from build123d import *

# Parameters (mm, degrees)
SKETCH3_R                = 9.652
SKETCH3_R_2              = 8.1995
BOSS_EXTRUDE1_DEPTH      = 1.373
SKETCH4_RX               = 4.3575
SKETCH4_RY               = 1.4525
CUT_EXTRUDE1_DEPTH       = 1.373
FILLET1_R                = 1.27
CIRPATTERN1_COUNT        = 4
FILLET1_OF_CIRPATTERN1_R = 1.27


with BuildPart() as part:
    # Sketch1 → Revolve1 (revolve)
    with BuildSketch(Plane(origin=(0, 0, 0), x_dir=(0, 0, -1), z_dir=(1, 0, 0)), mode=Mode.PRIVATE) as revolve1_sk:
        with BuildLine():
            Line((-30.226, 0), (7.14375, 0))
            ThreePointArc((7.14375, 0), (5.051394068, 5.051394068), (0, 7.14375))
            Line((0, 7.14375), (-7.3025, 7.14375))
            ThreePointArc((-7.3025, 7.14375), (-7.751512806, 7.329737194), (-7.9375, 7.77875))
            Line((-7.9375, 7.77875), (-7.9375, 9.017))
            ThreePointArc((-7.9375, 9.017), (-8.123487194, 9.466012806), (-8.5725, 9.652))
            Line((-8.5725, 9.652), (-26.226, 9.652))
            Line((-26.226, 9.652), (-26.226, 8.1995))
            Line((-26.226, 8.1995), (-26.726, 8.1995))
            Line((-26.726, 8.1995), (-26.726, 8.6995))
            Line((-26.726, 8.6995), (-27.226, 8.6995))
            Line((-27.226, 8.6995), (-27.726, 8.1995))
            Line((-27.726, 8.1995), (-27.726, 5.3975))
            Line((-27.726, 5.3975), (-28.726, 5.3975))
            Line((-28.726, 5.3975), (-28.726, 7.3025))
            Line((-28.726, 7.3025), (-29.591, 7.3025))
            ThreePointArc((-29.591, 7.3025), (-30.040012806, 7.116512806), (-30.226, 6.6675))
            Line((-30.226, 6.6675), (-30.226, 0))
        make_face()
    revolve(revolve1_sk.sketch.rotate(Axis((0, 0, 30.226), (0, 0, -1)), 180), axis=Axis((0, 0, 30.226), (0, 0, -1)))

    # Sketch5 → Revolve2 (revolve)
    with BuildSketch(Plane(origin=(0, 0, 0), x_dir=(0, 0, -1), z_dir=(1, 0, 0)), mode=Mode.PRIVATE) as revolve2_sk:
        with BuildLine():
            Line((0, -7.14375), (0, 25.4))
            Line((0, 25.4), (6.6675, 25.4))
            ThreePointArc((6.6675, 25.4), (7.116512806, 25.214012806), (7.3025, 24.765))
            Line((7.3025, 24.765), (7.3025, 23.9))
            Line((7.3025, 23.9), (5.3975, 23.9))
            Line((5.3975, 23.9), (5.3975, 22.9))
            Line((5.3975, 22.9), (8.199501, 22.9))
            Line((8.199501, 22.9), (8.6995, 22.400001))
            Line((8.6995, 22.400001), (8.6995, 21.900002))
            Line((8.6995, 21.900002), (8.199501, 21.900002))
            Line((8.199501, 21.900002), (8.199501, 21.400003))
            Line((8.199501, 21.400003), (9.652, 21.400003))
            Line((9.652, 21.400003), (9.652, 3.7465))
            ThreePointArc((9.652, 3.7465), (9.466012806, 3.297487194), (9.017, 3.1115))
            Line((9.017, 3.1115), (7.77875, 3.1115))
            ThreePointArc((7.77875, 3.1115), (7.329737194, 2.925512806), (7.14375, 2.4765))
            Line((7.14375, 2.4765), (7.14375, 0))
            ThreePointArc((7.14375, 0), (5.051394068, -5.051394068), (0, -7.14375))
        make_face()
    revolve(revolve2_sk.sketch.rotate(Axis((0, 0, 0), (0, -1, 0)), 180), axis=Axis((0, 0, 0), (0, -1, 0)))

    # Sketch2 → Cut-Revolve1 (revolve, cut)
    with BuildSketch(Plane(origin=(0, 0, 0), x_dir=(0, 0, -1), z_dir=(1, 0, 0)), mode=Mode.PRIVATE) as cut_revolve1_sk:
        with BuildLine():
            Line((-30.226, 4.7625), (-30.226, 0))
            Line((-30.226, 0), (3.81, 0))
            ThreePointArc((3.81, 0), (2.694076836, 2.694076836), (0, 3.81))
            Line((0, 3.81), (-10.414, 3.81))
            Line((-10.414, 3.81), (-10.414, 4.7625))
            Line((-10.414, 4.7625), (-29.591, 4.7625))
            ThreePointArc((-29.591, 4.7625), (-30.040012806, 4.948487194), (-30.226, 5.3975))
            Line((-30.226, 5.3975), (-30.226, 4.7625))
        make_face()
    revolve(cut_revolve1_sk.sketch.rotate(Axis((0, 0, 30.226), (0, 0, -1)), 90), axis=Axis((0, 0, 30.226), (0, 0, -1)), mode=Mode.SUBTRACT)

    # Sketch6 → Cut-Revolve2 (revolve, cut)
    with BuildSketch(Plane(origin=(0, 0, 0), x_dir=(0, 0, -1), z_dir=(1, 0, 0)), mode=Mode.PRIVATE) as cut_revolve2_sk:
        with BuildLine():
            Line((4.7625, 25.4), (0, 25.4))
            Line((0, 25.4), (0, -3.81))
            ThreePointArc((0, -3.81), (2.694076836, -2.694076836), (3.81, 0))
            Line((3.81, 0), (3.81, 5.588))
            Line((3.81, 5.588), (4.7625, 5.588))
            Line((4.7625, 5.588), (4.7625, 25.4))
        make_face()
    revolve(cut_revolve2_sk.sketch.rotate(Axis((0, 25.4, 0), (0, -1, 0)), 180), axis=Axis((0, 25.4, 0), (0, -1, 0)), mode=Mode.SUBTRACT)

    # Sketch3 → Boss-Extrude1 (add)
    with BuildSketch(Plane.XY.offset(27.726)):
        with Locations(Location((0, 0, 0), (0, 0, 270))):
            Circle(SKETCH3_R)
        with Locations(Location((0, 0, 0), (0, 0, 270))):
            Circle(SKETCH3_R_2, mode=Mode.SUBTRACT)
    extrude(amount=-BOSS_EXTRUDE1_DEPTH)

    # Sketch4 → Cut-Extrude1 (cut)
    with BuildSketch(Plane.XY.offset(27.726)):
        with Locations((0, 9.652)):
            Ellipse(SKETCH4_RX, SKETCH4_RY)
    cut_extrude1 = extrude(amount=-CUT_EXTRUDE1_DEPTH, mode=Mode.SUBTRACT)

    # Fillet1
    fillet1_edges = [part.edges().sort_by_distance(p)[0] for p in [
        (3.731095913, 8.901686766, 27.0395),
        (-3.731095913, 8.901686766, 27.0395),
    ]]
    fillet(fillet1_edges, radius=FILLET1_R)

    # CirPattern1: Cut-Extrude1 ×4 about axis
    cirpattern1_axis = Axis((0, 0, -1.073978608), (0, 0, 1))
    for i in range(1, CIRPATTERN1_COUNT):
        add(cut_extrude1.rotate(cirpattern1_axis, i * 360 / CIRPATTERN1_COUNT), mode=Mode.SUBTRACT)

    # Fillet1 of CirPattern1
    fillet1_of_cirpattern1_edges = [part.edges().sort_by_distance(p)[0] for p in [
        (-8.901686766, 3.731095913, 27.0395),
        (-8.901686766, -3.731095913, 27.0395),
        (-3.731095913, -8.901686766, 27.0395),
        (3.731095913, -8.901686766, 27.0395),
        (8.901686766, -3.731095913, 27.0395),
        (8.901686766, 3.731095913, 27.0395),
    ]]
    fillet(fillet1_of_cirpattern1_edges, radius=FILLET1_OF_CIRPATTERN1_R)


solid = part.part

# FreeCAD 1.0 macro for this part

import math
import FreeCAD as App
import Part
import Sketcher

V = App.Vector
Q = App.Units.Quantity


def edges_at(feature, points):
    """Names of the edges that pass closest to the given points."""
    edges = feature.Shape.Edges
    near = lambda p: min(range(len(edges)), key=lambda i: edges[i].distToShape(Part.Vertex(*p))[0])
    return sorted({f"Edge{near(p) + 1}" for p in points})

doc = App.newDocument("Part")
body = doc.addObject("PartDesign::Body", "Body")

# Sketch on YZ plane
sketch1 = body.newObject("Sketcher::SketchObject", "Sketch")
sketch1.AttachmentSupport = (doc.getObject("YZ_Plane"), [""])
sketch1.MapMode = "FlatFace"
sketch1.addGeometry(Part.LineSegment(V(0, 30.226, 0), V(0, -7.14375, 0)), False)
sketch1.addGeometry(Part.ArcOfCircle(Part.Circle(V(0, 0, 0), V(0, 0, 1), 7.14375), math.radians(-90), math.radians(0)), False)
sketch1.addGeometry(Part.LineSegment(V(7.14375, 0, 0), V(7.14375, 7.3025, 0)), False)
sketch1.addGeometry(Part.ArcOfCircle(Part.Circle(V(7.77875, 7.3025, 0), V(0, 0, 1), 0.635), math.radians(90), math.radians(180)), False)
sketch1.addGeometry(Part.LineSegment(V(7.77875, 7.9375, 0), V(9.017, 7.9375, 0)), False)
sketch1.addGeometry(Part.ArcOfCircle(Part.Circle(V(9.017, 8.5725, 0), V(0, 0, 1), 0.635), math.radians(-90), math.radians(0)), False)
sketch1.addGeometry(Part.LineSegment(V(9.652, 8.5725, 0), V(9.652, 26.226, 0)), False)
sketch1.addGeometry(Part.LineSegment(V(9.652, 26.226, 0), V(8.1995, 26.226, 0)), False)
sketch1.addGeometry(Part.LineSegment(V(8.1995, 26.226, 0), V(8.1995, 26.726, 0)), False)
sketch1.addGeometry(Part.LineSegment(V(8.1995, 26.726, 0), V(8.6995, 26.726, 0)), False)
sketch1.addGeometry(Part.LineSegment(V(8.6995, 26.726, 0), V(8.6995, 27.226, 0)), False)
sketch1.addGeometry(Part.LineSegment(V(8.6995, 27.226, 0), V(8.1995, 27.726, 0)), False)
sketch1.addGeometry(Part.LineSegment(V(8.1995, 27.726, 0), V(5.3975, 27.726, 0)), False)
sketch1.addGeometry(Part.LineSegment(V(5.3975, 27.726, 0), V(5.3975, 28.726, 0)), False)
sketch1.addGeometry(Part.LineSegment(V(5.3975, 28.726, 0), V(7.3025, 28.726, 0)), False)
sketch1.addGeometry(Part.LineSegment(V(7.3025, 28.726, 0), V(7.3025, 29.591, 0)), False)
sketch1.addGeometry(Part.ArcOfCircle(Part.Circle(V(6.6675, 29.591, 0), V(0, 0, 1), 0.635), math.radians(0), math.radians(90)), False)
sketch1.addGeometry(Part.LineSegment(V(6.6675, 30.226, 0), V(0, 30.226, 0)), False)
sketch1.addConstraint(Sketcher.Constraint("Coincident", 0, 2, 1, 1))
sketch1.addConstraint(Sketcher.Constraint("Tangent", 1, 2, 2, 1))
sketch1.addConstraint(Sketcher.Constraint("Tangent", 2, 2, 3, 2))
sketch1.addConstraint(Sketcher.Constraint("Tangent", 3, 1, 4, 1))
sketch1.addConstraint(Sketcher.Constraint("Tangent", 4, 2, 5, 1))
sketch1.addConstraint(Sketcher.Constraint("Tangent", 5, 2, 6, 1))
sketch1.addConstraint(Sketcher.Constraint("Coincident", 6, 2, 7, 1))
sketch1.addConstraint(Sketcher.Constraint("Coincident", 7, 2, 8, 1))
sketch1.addConstraint(Sketcher.Constraint("Coincident", 8, 2, 9, 1))
sketch1.addConstraint(Sketcher.Constraint("Coincident", 9, 2, 10, 1))
sketch1.addConstraint(Sketcher.Constraint("Coincident", 10, 2, 11, 1))
sketch1.addConstraint(Sketcher.Constraint("Coincident", 11, 2, 12, 1))
sketch1.addConstraint(Sketcher.Constraint("Coincident", 12, 2, 13, 1))
sketch1.addConstraint(Sketcher.Constraint("Coincident", 13, 2, 14, 1))
sketch1.addConstraint(Sketcher.Constraint("Coincident", 14, 2, 15, 1))
sketch1.addConstraint(Sketcher.Constraint("Tangent", 15, 2, 16, 1))
sketch1.addConstraint(Sketcher.Constraint("Tangent", 16, 2, 17, 1))
sketch1.addConstraint(Sketcher.Constraint("Coincident", 17, 2, 0, 1))
sketch1.addConstraint(Sketcher.Constraint("Vertical", 0))
sketch1.addConstraint(Sketcher.Constraint("Vertical", 2))
sketch1.addConstraint(Sketcher.Constraint("Horizontal", 4))
sketch1.addConstraint(Sketcher.Constraint("Vertical", 6))
sketch1.addConstraint(Sketcher.Constraint("Horizontal", 7))
sketch1.addConstraint(Sketcher.Constraint("Vertical", 8))
sketch1.addConstraint(Sketcher.Constraint("Horizontal", 9))
sketch1.addConstraint(Sketcher.Constraint("Vertical", 10))
sketch1.addConstraint(Sketcher.Constraint("Horizontal", 12))
sketch1.addConstraint(Sketcher.Constraint("Vertical", 13))
sketch1.addConstraint(Sketcher.Constraint("Horizontal", 14))
sketch1.addConstraint(Sketcher.Constraint("Vertical", 15))
sketch1.addConstraint(Sketcher.Constraint("Horizontal", 17))
sketch1.addConstraint(Sketcher.Constraint("Coincident", 1, 3, -1, 1))
sketch1.addConstraint(Sketcher.Constraint("Equal", 3, 5))
sketch1.addConstraint(Sketcher.Constraint("Equal", 5, 16))
sketch1.addConstraint(Sketcher.Constraint("PointOnObject", 0, 2, -2))
sketch1.addConstraint(Sketcher.Constraint("Vertical", 8, 2, 11, 2))
sketch1.addConstraint(Sketcher.Constraint("Equal", 9, 8))
sketch1.addConstraint(Sketcher.Constraint("Equal", 8, 10))
sketch1.addConstraint(Sketcher.Constraint("Angle", 11, Q("135 deg")))
sketch1.addConstraint(Sketcher.Constraint("Radius", 1, Q("0.28125 in")))
sketch1.addConstraint(Sketcher.Constraint("Radius", 3, Q("0.025 in")))
sketch1.addConstraint(Sketcher.Constraint("DistanceX", 14, 1, 14, 2, Q("0.075 in")))
sketch1.addConstraint(Sketcher.Constraint("DistanceX", -1, 1, 5, 2, Q("0.38 in")))
sketch1.addConstraint(Sketcher.Constraint("DistanceY", -1, 1, 16, 2, Q("1.19 in")))
sketch1.addConstraint(Sketcher.Constraint("DistanceX", 16, 3, 9, 2, Q("0.08 in")))
sketch1.addConstraint(Sketcher.Constraint("DistanceX", 17, 2, 17, 1, Q("0.2625 in")))
sketch1.addConstraint(Sketcher.Constraint("DistanceY", 2, 1, 2, 2, Q("0.2875 in")))
sketch1.addConstraint(Sketcher.Constraint("DistanceX", 7, 2, 7, 1, 1.4525))
sketch1.addConstraint(Sketcher.Constraint("DistanceY", 6, 1, 6, 2, 17.6535))
sketch1.addConstraint(Sketcher.Constraint("DistanceY", 13, 1, 13, 2, 1.0))
revolution = body.newObject("PartDesign::Revolution", "Revolution")
revolution.Profile = sketch1
revolution.ReferenceAxis = (sketch1, ["V_Axis"])
revolution.Angle = 360

# Sketch on YZ plane
sketch2 = body.newObject("Sketcher::SketchObject", "Sketch001")
sketch2.AttachmentSupport = (doc.getObject("YZ_Plane"), [""])
sketch2.MapMode = "FlatFace"
sketch2.addGeometry(Part.LineSegment(V(25.4, 0, 0), V(-7.14375, 0, 0)), False)
sketch2.addGeometry(Part.ArcOfCircle(Part.Circle(V(0, 0, 0), V(0, 0, 1), 7.14375), math.radians(180), math.radians(270)), False)
sketch2.addGeometry(Part.LineSegment(V(0, -7.14375, 0), V(2.4765, -7.14375, 0)), False)
sketch2.addGeometry(Part.ArcOfCircle(Part.Circle(V(2.4765, -7.77875, 0), V(0, 0, 1), 0.635), math.radians(0), math.radians(90)), False)
sketch2.addGeometry(Part.LineSegment(V(3.1115, -7.77875, 0), V(3.1115, -9.017, 0)), False)
sketch2.addGeometry(Part.ArcOfCircle(Part.Circle(V(3.7465, -9.017, 0), V(0, 0, 1), 0.635), math.radians(180), math.radians(270)), False)
sketch2.addGeometry(Part.LineSegment(V(3.7465, -9.652, 0), V(21.400003, -9.652, 0)), False)
sketch2.addGeometry(Part.LineSegment(V(21.400003, -9.652, 0), V(21.400003, -8.199501, 0)), False)
sketch2.addGeometry(Part.LineSegment(V(21.400003, -8.199501, 0), V(21.900002, -8.199501, 0)), False)
sketch2.addGeometry(Part.LineSegment(V(21.900002, -8.199501, 0), V(21.900002, -8.6995, 0)), False)
sketch2.addGeometry(Part.LineSegment(V(21.900002, -8.6995, 0), V(22.400001, -8.6995, 0)), False)
sketch2.addGeometry(Part.LineSegment(V(22.400001, -8.6995, 0), V(22.9, -8.199501, 0)), False)
sketch2.addGeometry(Part.LineSegment(V(22.9, -8.199501, 0), V(22.9, -5.3975, 0)), False)
sketch2.addGeometry(Part.LineSegment(V(22.9, -5.3975, 0), V(23.9, -5.3975, 0)), False)
sketch2.addGeometry(Part.LineSegment(V(23.9, -5.3975, 0), V(23.9, -7.3025, 0)), False)
sketch2.addGeometry(Part.LineSegment(V(23.9, -7.3025, 0), V(24.765, -7.3025, 0)), False)
sketch2.addGeometry(Part.ArcOfCircle(Part.Circle(V(24.765, -6.6675, 0), V(0, 0, 1), 0.635), math.radians(-90), math.radians(0)), False)
sketch2.addGeometry(Part.LineSegment(V(25.4, -6.6675, 0), V(25.4, 0, 0)), False)
sketch2.addConstraint(Sketcher.Constraint("Coincident", 0, 2, 1, 1))
sketch2.addConstraint(Sketcher.Constraint("Tangent", 1, 2, 2, 1))
sketch2.addConstraint(Sketcher.Constraint("Tangent", 2, 2, 3, 2))
sketch2.addConstraint(Sketcher.Constraint("Tangent", 3, 1, 4, 1))
sketch2.addConstraint(Sketcher.Constraint("Tangent", 4, 2, 5, 1))
sketch2.addConstraint(Sketcher.Constraint("Tangent", 5, 2, 6, 1))
sketch2.addConstraint(Sketcher.Constraint("Coincident", 6, 2, 7, 1))
sketch2.addConstraint(Sketcher.Constraint("Coincident", 7, 2, 8, 1))
sketch2.addConstraint(Sketcher.Constraint("Coincident", 8, 2, 9, 1))
sketch2.addConstraint(Sketcher.Constraint("Coincident", 9, 2, 10, 1))
sketch2.addConstraint(Sketcher.Constraint("Coincident", 10, 2, 11, 1))
sketch2.addConstraint(Sketcher.Constraint("Coincident", 11, 2, 12, 1))
sketch2.addConstraint(Sketcher.Constraint("Coincident", 12, 2, 13, 1))
sketch2.addConstraint(Sketcher.Constraint("Coincident", 13, 2, 14, 1))
sketch2.addConstraint(Sketcher.Constraint("Coincident", 14, 2, 15, 1))
sketch2.addConstraint(Sketcher.Constraint("Tangent", 15, 2, 16, 1))
sketch2.addConstraint(Sketcher.Constraint("Tangent", 16, 2, 17, 1))
sketch2.addConstraint(Sketcher.Constraint("Coincident", 17, 2, 0, 1))
sketch2.addConstraint(Sketcher.Constraint("Horizontal", 0))
sketch2.addConstraint(Sketcher.Constraint("Horizontal", 2))
sketch2.addConstraint(Sketcher.Constraint("Vertical", 4))
sketch2.addConstraint(Sketcher.Constraint("Horizontal", 6))
sketch2.addConstraint(Sketcher.Constraint("Vertical", 7))
sketch2.addConstraint(Sketcher.Constraint("Horizontal", 8))
sketch2.addConstraint(Sketcher.Constraint("Vertical", 9))
sketch2.addConstraint(Sketcher.Constraint("Horizontal", 10))
sketch2.addConstraint(Sketcher.Constraint("Vertical", 12))
sketch2.addConstraint(Sketcher.Constraint("Horizontal", 13))
sketch2.addConstraint(Sketcher.Constraint("Vertical", 14))
sketch2.addConstraint(Sketcher.Constraint("Horizontal", 15))
sketch2.addConstraint(Sketcher.Constraint("Vertical", 17))
sketch2.addConstraint(Sketcher.Constraint("Coincident", 1, 3, -1, 1))
sketch2.addConstraint(Sketcher.Constraint("Equal", 3, 5))
sketch2.addConstraint(Sketcher.Constraint("Equal", 5, 16))
sketch2.addConstraint(Sketcher.Constraint("PointOnObject", 0, 2, -1))
sketch2.addConstraint(Sketcher.Constraint("Horizontal", 8, 2, 11, 2))
sketch2.addConstraint(Sketcher.Constraint("Equal", 8, 10))
sketch2.addConstraint(Sketcher.Constraint("Equal", 10, 9))
sketch2.addConstraint(Sketcher.Constraint("DistanceX", -1, 1, 16, 2, Q("1 in")))
sketch2.addConstraint(Sketcher.Constraint("Angle", 11, Q("45 deg")))
sketch2.addConstraint(Sketcher.Constraint("Radius", 1, Q("0.28125 in")))
sketch2.addConstraint(Sketcher.Constraint("Radius", 3, Q("0.025 in")))
sketch2.addConstraint(Sketcher.Constraint("DistanceY", 14, 2, 14, 1, Q("0.075 in")))
sketch2.addConstraint(Sketcher.Constraint("DistanceY", 5, 2, -1, 1, Q("0.38 in")))
sketch2.addConstraint(Sketcher.Constraint("DistanceY", 9, 2, 16, 3, Q("0.08 in")))
sketch2.addConstraint(Sketcher.Constraint("DistanceX", 2, 1, 2, 2, Q("0.0975 in")))
sketch2.addConstraint(Sketcher.Constraint("DistanceY", 17, 1, 17, 2, Q("0.2625 in")))
sketch2.addConstraint(Sketcher.Constraint("DistanceX", 8, 1, 8, 2, 0.499999))
sketch2.addConstraint(Sketcher.Constraint("DistanceX", 13, 1, 13, 2, 1.0))
sketch2.addConstraint(Sketcher.Constraint("DistanceX", 15, 1, 15, 2, 0.865))
revolution2 = body.newObject("PartDesign::Revolution", "Revolution001")
revolution2.Profile = sketch2
revolution2.ReferenceAxis = (sketch2, ["H_Axis"])
revolution2.Angle = 360

# Sketch on YZ plane
sketch3 = body.newObject("Sketcher::SketchObject", "Sketch002")
sketch3.AttachmentSupport = (doc.getObject("YZ_Plane"), [""])
sketch3.MapMode = "FlatFace"
sketch3.addGeometry(Part.LineSegment(V(0, 30.226, 0), V(0, -3.81, 0)), False)
sketch3.addGeometry(Part.ArcOfCircle(Part.Circle(V(0, 0, 0), V(0, 0, 1), 3.81), math.radians(-90), math.radians(0)), False)
sketch3.addGeometry(Part.LineSegment(V(3.81, 0, 0), V(3.81, 10.414, 0)), False)
sketch3.addGeometry(Part.LineSegment(V(3.81, 10.414, 0), V(4.7625, 10.414, 0)), False)
sketch3.addGeometry(Part.LineSegment(V(4.7625, 10.414, 0), V(4.7625, 29.591, 0)), False)
sketch3.addGeometry(Part.ArcOfCircle(Part.Circle(V(5.3975, 29.591, 0), V(0, 0, 1), 0.635), math.radians(90), math.radians(180)), False)
sketch3.addGeometry(Part.LineSegment(V(5.3975, 30.226, 0), V(0, 30.226, 0)), False)
sketch3.addConstraint(Sketcher.Constraint("Coincident", 0, 2, 1, 1))
sketch3.addConstraint(Sketcher.Constraint("Tangent", 1, 2, 2, 1))
sketch3.addConstraint(Sketcher.Constraint("Coincident", 2, 2, 3, 1))
sketch3.addConstraint(Sketcher.Constraint("Coincident", 3, 2, 4, 1))
sketch3.addConstraint(Sketcher.Constraint("Tangent", 4, 2, 5, 2))
sketch3.addConstraint(Sketcher.Constraint("Tangent", 5, 1, 6, 1))
sketch3.addConstraint(Sketcher.Constraint("Coincident", 6, 2, 0, 1))
sketch3.addConstraint(Sketcher.Constraint("Vertical", 0))
sketch3.addConstraint(Sketcher.Constraint("Vertical", 2))
sketch3.addConstraint(Sketcher.Constraint("Horizontal", 3))
sketch3.addConstraint(Sketcher.Constraint("Vertical", 4))
sketch3.addConstraint(Sketcher.Constraint("Horizontal", 6))
sketch3.addConstraint(Sketcher.Constraint("Coincident", 1, 3, -1, 1))
sketch3.addConstraint(Sketcher.Constraint("PointOnObject", 0, 2, -2))
sketch3.addConstraint(Sketcher.Constraint("Radius", 1, Q("0.15 in")))
sketch3.addConstraint(Sketcher.Constraint("Radius", 5, Q("0.025 in")))
sketch3.addConstraint(Sketcher.Constraint("DistanceY", 0, 2, 0, 1, Q("1.34 in")))
sketch3.addConstraint(Sketcher.Constraint("DistanceY", 2, 1, 2, 2, Q("0.41 in")))
sketch3.addConstraint(Sketcher.Constraint("DistanceX", 3, 1, 3, 2, Q("0.0375 in")))
groove = body.newObject("PartDesign::Groove", "Groove")
groove.Profile = sketch3
groove.ReferenceAxis = (sketch3, ["V_Axis"])
groove.Angle = 360

# Sketch on YZ plane
sketch4 = body.newObject("Sketcher::SketchObject", "Sketch003")
sketch4.AttachmentSupport = (doc.getObject("YZ_Plane"), [""])
sketch4.MapMode = "FlatFace"
sketch4.addGeometry(Part.LineSegment(V(25.4, -4.7625, 0), V(25.4, 0, 0)), False)
sketch4.addGeometry(Part.LineSegment(V(25.4, 0, 0), V(-3.81, 0, 0)), False)
sketch4.addGeometry(Part.ArcOfCircle(Part.Circle(V(0, 0, 0), V(0, 0, 1), 3.81), math.radians(-180), math.radians(-90)), False)
sketch4.addGeometry(Part.LineSegment(V(0, -3.81, 0), V(5.588, -3.81, 0)), False)
sketch4.addGeometry(Part.LineSegment(V(5.588, -3.81, 0), V(5.588, -4.7625, 0)), False)
sketch4.addGeometry(Part.LineSegment(V(5.588, -4.7625, 0), V(25.4, -4.7625, 0)), False)
sketch4.addConstraint(Sketcher.Constraint("Coincident", 0, 2, 1, 1))
sketch4.addConstraint(Sketcher.Constraint("Coincident", 1, 2, 2, 1))
sketch4.addConstraint(Sketcher.Constraint("Tangent", 2, 2, 3, 1))
sketch4.addConstraint(Sketcher.Constraint("Coincident", 3, 2, 4, 1))
sketch4.addConstraint(Sketcher.Constraint("Coincident", 4, 2, 5, 1))
sketch4.addConstraint(Sketcher.Constraint("Coincident", 5, 2, 0, 1))
sketch4.addConstraint(Sketcher.Constraint("Vertical", 0))
sketch4.addConstraint(Sketcher.Constraint("Horizontal", 1))
sketch4.addConstraint(Sketcher.Constraint("Horizontal", 3))
sketch4.addConstraint(Sketcher.Constraint("Vertical", 4))
sketch4.addConstraint(Sketcher.Constraint("Horizontal", 5))
sketch4.addConstraint(Sketcher.Constraint("Coincident", 2, 3, -1, 1))
sketch4.addConstraint(Sketcher.Constraint("PointOnObject", 0, 2, -1))
sketch4.addConstraint(Sketcher.Constraint("Radius", 2, Q("0.15 in")))
sketch4.addConstraint(Sketcher.Constraint("DistanceX", -1, 1, 0, 2, Q("1 in")))
sketch4.addConstraint(Sketcher.Constraint("DistanceX", 3, 1, 3, 2, Q("0.22 in")))
sketch4.addConstraint(Sketcher.Constraint("DistanceY", 0, 1, 0, 2, Q("0.1875 in")))
groove2 = body.newObject("PartDesign::Groove", "Groove001")
groove2.Profile = sketch4
groove2.ReferenceAxis = (sketch4, ["H_Axis"])
groove2.Angle = 360

# Sketch on XY plane
sketch5 = body.newObject("Sketcher::SketchObject", "Sketch004")
sketch5.AttachmentSupport = (doc.getObject("XY_Plane"), [""])
sketch5.MapMode = "FlatFace"
sketch5.AttachmentOffset = App.Placement(V(0, 0, 27.726), App.Rotation())
sketch5.addGeometry(Part.Circle(V(0, 0, 0), V(0, 0, 1), 9.652), False)
sketch5.addGeometry(Part.Circle(V(0, 0, 0), V(0, 0, 1), 8.1995), False)
sketch5.addConstraint(Sketcher.Constraint("Coincident", 0, 3, -1, 1))
sketch5.addConstraint(Sketcher.Constraint("Coincident", 1, 3, -1, 1))
sketch5.addConstraint(Sketcher.Constraint("Diameter", 0, Q("0.76 in")))
sketch5.addConstraint(Sketcher.Constraint("Diameter", 1, 16.399))
pad1 = body.newObject("PartDesign::Pad", "Pad")
pad1.Profile = sketch5
pad1.Length = 1.373
pad1.Reversed = True

# Sketch on XY plane
sketch6 = body.newObject("Sketcher::SketchObject", "Sketch005")
sketch6.AttachmentSupport = (doc.getObject("XY_Plane"), [""])
sketch6.MapMode = "FlatFace"
sketch6.AttachmentOffset = App.Placement(V(0, 0, 27.726), App.Rotation())
sketch6.addGeometry(Part.Ellipse(V(4.3575, 9.652, 0), V(0, 11.1045, 0), V(0, 9.652, 0)), False)
sketch6.addConstraint(Sketcher.Constraint("Block", 0))
pocket1 = body.newObject("PartDesign::Pocket", "Pocket")
pocket1.Profile = sketch6
pocket1.Length = 1.373
doc.recompute()

fillet = body.newObject("PartDesign::Fillet", "Fillet")
fillet.Base = (pocket1, edges_at(pocket1, [(3.731, 8.902, 27.04), (-3.731, 8.902, 27.04)]))
fillet.Radius = Q("0.05 in")
doc.recompute()

polarpattern = body.newObject("PartDesign::PolarPattern", "PolarPattern")
polarpattern.Originals = [pocket1]
polarpattern.Axis = (doc.getObject("Z_Axis"), [""])
polarpattern.Angle = 360
polarpattern.Occurrences = 4
body.Tip = polarpattern
doc.recompute()

fillet2 = body.newObject("PartDesign::Fillet", "Fillet001")
fillet2.Base = (polarpattern, edges_at(polarpattern, [
    (-8.902, 3.731, 27.04),
    (-8.902, -3.731, 27.04),
    (-3.731, -8.902, 27.04),
    (3.731, -8.902, 27.04),
    (8.902, -3.731, 27.04),
    (8.902, 3.731, 27.04),
]))
fillet2.Radius = Q("0.05 in")

doc.recompute()
